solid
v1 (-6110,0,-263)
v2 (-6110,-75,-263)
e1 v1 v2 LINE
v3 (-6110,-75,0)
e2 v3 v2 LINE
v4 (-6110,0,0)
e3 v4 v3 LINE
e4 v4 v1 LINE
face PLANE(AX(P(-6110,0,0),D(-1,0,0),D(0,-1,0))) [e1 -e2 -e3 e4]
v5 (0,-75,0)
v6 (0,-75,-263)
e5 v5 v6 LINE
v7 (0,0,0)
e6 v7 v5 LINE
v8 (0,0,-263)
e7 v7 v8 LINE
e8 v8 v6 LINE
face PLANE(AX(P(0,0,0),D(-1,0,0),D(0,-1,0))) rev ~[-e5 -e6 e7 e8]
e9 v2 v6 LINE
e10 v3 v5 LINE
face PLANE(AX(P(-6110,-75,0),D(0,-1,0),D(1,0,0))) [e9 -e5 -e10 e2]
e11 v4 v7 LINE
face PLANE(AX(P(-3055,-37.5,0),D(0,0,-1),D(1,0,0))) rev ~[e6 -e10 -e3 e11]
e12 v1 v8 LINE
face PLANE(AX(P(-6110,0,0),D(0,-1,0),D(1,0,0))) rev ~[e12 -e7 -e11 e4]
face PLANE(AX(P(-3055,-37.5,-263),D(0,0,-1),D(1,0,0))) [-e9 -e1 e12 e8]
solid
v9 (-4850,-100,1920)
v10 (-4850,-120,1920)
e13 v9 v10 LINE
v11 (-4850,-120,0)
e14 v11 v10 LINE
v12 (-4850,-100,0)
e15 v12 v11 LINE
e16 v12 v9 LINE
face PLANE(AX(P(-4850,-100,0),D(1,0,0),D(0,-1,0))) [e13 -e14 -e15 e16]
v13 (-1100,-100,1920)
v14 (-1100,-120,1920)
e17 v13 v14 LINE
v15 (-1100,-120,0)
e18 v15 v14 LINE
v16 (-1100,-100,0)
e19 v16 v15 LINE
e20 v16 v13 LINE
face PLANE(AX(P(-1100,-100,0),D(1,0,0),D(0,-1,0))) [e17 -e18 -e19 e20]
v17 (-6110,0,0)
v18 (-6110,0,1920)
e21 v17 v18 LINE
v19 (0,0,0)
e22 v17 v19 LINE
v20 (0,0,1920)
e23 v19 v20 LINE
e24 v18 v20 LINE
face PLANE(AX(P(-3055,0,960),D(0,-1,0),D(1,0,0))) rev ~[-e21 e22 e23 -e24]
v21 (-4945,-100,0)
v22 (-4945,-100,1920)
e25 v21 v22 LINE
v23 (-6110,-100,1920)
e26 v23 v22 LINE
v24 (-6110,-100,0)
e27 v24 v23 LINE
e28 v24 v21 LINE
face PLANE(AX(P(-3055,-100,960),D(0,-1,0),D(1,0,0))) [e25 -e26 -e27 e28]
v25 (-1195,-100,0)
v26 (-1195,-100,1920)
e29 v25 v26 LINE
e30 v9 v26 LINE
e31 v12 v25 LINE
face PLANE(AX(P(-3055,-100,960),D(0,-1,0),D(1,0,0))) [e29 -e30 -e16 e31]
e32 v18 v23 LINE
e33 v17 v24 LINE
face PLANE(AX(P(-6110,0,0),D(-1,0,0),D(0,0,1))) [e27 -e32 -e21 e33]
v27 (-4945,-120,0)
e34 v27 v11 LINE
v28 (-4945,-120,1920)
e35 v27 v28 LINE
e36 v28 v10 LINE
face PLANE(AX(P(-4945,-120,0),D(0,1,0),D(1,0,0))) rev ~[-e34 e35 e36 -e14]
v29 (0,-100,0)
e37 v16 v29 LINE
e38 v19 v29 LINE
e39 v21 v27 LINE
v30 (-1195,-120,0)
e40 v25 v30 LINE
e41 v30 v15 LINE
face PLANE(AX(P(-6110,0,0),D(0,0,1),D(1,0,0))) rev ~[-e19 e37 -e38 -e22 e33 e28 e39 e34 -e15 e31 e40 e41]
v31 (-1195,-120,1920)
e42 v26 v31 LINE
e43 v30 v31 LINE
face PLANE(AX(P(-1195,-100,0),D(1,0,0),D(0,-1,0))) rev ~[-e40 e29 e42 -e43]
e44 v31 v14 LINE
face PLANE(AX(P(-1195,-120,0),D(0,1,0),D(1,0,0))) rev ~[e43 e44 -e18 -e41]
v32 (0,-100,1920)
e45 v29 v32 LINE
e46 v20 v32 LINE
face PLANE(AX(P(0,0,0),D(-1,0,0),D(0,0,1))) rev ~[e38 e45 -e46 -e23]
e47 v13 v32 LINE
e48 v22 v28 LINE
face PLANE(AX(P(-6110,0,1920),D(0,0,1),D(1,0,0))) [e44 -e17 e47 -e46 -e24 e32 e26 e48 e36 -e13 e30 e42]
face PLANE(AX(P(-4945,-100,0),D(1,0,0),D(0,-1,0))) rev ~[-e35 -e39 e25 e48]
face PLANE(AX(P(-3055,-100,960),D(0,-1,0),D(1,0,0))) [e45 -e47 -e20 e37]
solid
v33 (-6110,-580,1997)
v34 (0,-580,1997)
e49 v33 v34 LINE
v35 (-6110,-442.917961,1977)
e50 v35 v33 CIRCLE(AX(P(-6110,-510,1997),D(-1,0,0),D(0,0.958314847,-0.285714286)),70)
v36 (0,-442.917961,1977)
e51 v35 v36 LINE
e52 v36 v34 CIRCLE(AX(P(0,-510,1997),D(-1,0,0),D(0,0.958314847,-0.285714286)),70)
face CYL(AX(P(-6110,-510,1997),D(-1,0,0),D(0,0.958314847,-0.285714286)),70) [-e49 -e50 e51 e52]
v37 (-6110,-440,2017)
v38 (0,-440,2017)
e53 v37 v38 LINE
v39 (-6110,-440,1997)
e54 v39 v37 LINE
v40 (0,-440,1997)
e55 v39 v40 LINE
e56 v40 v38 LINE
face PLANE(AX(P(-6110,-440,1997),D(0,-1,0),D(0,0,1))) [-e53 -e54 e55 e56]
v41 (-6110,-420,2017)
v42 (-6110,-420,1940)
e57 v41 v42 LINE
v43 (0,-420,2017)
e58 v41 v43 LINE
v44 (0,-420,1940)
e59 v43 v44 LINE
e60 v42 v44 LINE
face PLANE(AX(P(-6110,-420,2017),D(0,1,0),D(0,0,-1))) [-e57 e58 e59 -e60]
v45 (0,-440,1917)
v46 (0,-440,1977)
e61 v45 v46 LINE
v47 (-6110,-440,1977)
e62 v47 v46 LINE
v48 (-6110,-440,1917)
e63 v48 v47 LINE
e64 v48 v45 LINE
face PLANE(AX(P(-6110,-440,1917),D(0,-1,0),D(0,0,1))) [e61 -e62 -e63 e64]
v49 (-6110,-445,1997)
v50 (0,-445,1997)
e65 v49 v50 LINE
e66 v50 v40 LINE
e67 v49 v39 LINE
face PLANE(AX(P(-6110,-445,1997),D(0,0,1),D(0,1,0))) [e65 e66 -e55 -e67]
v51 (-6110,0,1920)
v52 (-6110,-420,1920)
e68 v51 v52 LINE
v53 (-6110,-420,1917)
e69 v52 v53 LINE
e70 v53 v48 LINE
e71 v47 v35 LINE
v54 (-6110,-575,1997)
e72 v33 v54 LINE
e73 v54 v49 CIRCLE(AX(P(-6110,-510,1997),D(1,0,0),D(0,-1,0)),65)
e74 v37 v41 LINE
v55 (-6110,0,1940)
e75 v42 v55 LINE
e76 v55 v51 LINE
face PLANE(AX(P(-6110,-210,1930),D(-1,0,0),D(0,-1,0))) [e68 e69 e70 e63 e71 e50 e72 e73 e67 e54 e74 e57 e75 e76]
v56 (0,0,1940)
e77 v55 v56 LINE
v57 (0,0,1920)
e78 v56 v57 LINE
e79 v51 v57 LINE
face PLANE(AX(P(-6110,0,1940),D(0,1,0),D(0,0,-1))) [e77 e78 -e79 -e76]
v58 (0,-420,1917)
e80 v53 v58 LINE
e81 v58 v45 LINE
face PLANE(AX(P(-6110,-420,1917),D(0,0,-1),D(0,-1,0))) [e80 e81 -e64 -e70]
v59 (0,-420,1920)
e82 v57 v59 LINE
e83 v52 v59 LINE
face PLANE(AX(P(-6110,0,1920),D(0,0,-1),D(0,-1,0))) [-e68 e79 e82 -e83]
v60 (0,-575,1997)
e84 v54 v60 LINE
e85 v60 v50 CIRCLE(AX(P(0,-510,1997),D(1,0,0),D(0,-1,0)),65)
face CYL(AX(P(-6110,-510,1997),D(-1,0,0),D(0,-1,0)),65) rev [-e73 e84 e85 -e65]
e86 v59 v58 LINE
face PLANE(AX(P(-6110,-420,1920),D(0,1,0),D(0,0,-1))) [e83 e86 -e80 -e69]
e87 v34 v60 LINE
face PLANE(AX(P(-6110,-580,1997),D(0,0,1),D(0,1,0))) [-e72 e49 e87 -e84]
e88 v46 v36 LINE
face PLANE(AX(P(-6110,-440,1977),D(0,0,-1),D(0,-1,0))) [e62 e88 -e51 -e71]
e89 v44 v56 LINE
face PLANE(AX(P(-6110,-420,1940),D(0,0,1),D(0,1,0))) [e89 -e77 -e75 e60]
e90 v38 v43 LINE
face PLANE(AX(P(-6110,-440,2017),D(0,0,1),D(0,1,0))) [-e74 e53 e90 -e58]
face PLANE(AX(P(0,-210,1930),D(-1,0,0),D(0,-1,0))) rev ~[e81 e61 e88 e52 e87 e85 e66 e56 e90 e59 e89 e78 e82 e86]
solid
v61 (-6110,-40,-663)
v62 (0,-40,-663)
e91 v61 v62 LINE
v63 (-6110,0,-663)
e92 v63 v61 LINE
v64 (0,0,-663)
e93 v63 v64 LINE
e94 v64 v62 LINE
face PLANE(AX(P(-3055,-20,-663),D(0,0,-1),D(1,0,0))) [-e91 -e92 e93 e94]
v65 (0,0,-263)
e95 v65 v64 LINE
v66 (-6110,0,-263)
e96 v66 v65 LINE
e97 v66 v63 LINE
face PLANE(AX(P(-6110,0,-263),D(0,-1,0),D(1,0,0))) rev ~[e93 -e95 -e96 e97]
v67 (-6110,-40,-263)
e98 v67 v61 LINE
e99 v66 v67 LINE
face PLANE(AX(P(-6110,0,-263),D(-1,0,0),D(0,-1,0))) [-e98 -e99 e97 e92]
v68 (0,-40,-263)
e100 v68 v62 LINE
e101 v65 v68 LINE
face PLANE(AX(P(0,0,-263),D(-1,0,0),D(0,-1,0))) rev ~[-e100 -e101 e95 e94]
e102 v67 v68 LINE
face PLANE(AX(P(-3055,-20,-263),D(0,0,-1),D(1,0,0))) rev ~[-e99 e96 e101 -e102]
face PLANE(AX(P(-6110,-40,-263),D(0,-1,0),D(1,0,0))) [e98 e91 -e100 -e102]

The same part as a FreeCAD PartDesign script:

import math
import FreeCAD as App
import Part
import Sketcher
from FreeCAD import Vector


def add_polygon(sketch, points):
    """Adds a closed chain of lines whose ends are joined by coincident constraints."""
    first, n = sketch.GeometryCount, len(points)
    for a, b in zip(points, points[1:] + points[:1]):
        sketch.addGeometry(Part.LineSegment(App.Vector(*a, 0), App.Vector(*b, 0)), False)
    for i in range(n):
        sketch.addConstraint(Sketcher.Constraint("Coincident", first + i, 2, first + (i + 1) % n, 1))

doc = App.newDocument("Part")
body = doc.addObject("PartDesign::Body", "Body")

# Sketch on XZ plane
sketch1 = body.newObject("Sketcher::SketchObject", "Sketch")
sketch1.AttachmentSupport = (doc.getObject("XZ_Plane"), [""])
sketch1.MapMode = "FlatFace"
add_polygon(sketch1, [(-6110, 1920), (-6110, 0), (0, 0), (0, 1920)])  # lines 0-3
sketch1.addConstraint([
    Sketcher.Constraint("Vertical", 0),
    Sketcher.Constraint("Horizontal", 1),
    Sketcher.Constraint("Vertical", 2),
    Sketcher.Constraint("Horizontal", 3),
    Sketcher.Constraint("Coincident", 1, 2, -1, 1),
    Sketcher.Constraint("DistanceX", 1, 1, 1, 2, 6110.0),
    Sketcher.Constraint("DistanceY", 0, 2, 0, 1, 1920.0),
])
pad1 = body.newObject("PartDesign::Pad", "Pad")
pad1.Profile = sketch1
pad1.Length = 100

# Sketch on XY plane
sketch2 = body.newObject("Sketcher::SketchObject", "Sketch001")
sketch2.AttachmentSupport = (doc.getObject("XY_Plane"), [""])
sketch2.MapMode = "FlatFace"
add_polygon(sketch2, [(-4945, -120), (-4945, -100), (-4850, -100), (-4850, -120)])  # lines 0-3
add_polygon(sketch2, [(-1195, -120), (-1195, -100), (-1100, -100), (-1100, -120)])  # lines 4-7
sketch2.addConstraint([
    Sketcher.Constraint("Vertical", 0),
    Sketcher.Constraint("Horizontal", 1),
    Sketcher.Constraint("Vertical", 2),
    Sketcher.Constraint("Horizontal", 3),
    Sketcher.Constraint("Vertical", 4),
    Sketcher.Constraint("Horizontal", 5),
    Sketcher.Constraint("Vertical", 6),
    Sketcher.Constraint("Horizontal", 7),
    Sketcher.Constraint("Horizontal", 1, 2, 4, 2),
    Sketcher.Constraint("Horizontal", 3, 2, 6, 2),
    Sketcher.Constraint("Equal", 3, 5),
    Sketcher.Constraint("DistanceX", 1, 1, 1, 2, 95.0),
    Sketcher.Constraint("DistanceY", 0, 1, 0, 2, 20.0),
    Sketcher.Constraint("DistanceX", 0, 2, -1, 1, 4945.0),
    Sketcher.Constraint("DistanceY", 0, 2, -1, 1, 100.0),
    Sketcher.Constraint("DistanceX", 4, 2, -1, 1, 1195.0),
])
pad2 = body.newObject("PartDesign::Pad", "Pad001")
pad2.Profile = sketch2
pad2.Length = 1920
body2 = doc.addObject("PartDesign::Body", "Body001")

# Sketch on YZ plane
sketch3 = body2.newObject("Sketcher::SketchObject", "Sketch002")
sketch3.AttachmentSupport = (doc.getObject("YZ_Plane001"), [""])
sketch3.MapMode = "FlatFace"
sketch3.AttachmentOffset = App.Placement(Vector(0, 0, -6110), App.Rotation())
sketch3.addGeometry([
    Part.LineSegment(Vector(0, 1940, 0), Vector(0, 1920, 0)),  # 0
    Part.LineSegment(Vector(0, 1920, 0), Vector(-420, 1920, 0)),  # 1
    Part.LineSegment(Vector(-420, 1920, 0), Vector(-420, 1917, 0)),  # 2
    Part.LineSegment(Vector(-420, 1917, 0), Vector(-440, 1917, 0)),  # 3
    Part.LineSegment(Vector(-440, 1917, 0), Vector(-440, 1977, 0)),  # 4
    Part.LineSegment(Vector(-440, 1977, 0), Vector(-442.9, 1977, 0)),  # 5
    Part.ArcOfCircle(Part.Circle(Vector(-510, 1997, 0), Vector(0, 0, 1), 70), math.radians(180), math.radians(343)),  # 6
    Part.LineSegment(Vector(-580, 1997, 0), Vector(-575, 1997, 0)),  # 7
    Part.ArcOfCircle(Part.Circle(Vector(-510, 1997, 0), Vector(0, 0, 1), 65), math.radians(180), math.radians(360)),  # 8
    Part.LineSegment(Vector(-445, 1997, 0), Vector(-440, 1997, 0)),  # 9
    Part.LineSegment(Vector(-440, 1997, 0), Vector(-440, 2017, 0)),  # 10
    Part.LineSegment(Vector(-440, 2017, 0), Vector(-420, 2017, 0)),  # 11
    Part.LineSegment(Vector(-420, 2017, 0), Vector(-420, 1940, 0)),  # 12
    Part.LineSegment(Vector(-420, 1940, 0), Vector(0, 1940, 0)),  # 13
], False)
sketch3.addConstraint([
    Sketcher.Constraint("Coincident", 0, 2, 1, 1),
    Sketcher.Constraint("Coincident", 1, 2, 2, 1),
    Sketcher.Constraint("Coincident", 2, 2, 3, 1),
    Sketcher.Constraint("Coincident", 3, 2, 4, 1),
    Sketcher.Constraint("Coincident", 4, 2, 5, 1),
    Sketcher.Constraint("Coincident", 5, 2, 6, 2),
    Sketcher.Constraint("Coincident", 6, 1, 7, 1),
    Sketcher.Constraint("Coincident", 7, 2, 8, 1),
    Sketcher.Constraint("Coincident", 8, 2, 9, 1),
    Sketcher.Constraint("Coincident", 9, 2, 10, 1),
    Sketcher.Constraint("Coincident", 10, 2, 11, 1),
    Sketcher.Constraint("Coincident", 11, 2, 12, 1),
    Sketcher.Constraint("Coincident", 12, 2, 13, 1),
    Sketcher.Constraint("Coincident", 13, 2, 0, 1),
    Sketcher.Constraint("Vertical", 0),
    Sketcher.Constraint("Horizontal", 1),
    Sketcher.Constraint("Vertical", 2),
    Sketcher.Constraint("Horizontal", 3),
    Sketcher.Constraint("Vertical", 4),
    Sketcher.Constraint("Horizontal", 5),
    Sketcher.Constraint("Horizontal", 7),
    Sketcher.Constraint("Horizontal", 9),
    Sketcher.Constraint("Vertical", 10),
    Sketcher.Constraint("Horizontal", 11),
    Sketcher.Constraint("Vertical", 12),
    Sketcher.Constraint("Horizontal", 13),
    Sketcher.Constraint("Coincident", 8, 3, 6, 3),
    Sketcher.Constraint("PointOnObject", 0, 2, -2),
    Sketcher.Constraint("Horizontal", 8, 3, 6, 1),
    Sketcher.Constraint("Horizontal", 7, 2, 8, 2),
    Sketcher.Constraint("Vertical", 4, 2, 9, 2),
    Sketcher.Constraint("Vertical", 2, 2, 11, 2),
    Sketcher.Constraint("Equal", 7, 9),
    Sketcher.Constraint("Equal", 11, 0),
    Sketcher.Constraint("Equal", 0, 10),
    Sketcher.Constraint("Radius", 6, 70.0),
    Sketcher.Constraint("Radius", 8, 65.0),
    Sketcher.Constraint("DistanceX", 1, 2, 1, 1, 420.0),
    Sketcher.Constraint("DistanceX", 3, 2, 3, 1, 20.0),
    Sketcher.Constraint("DistanceY", 2, 2, 2, 1, 3.0),
    Sketcher.Constraint("DistanceY", 4, 1, 4, 2, 60.0),
    Sketcher.Constraint("DistanceY", 12, 2, 12, 1, 77.0),
    Sketcher.Constraint("DistanceY", -1, 1, 6, 3, 1997.0),
])
pad3 = body2.newObject("PartDesign::Pad", "Pad002")
pad3.Profile = sketch3
pad3.Length = 6110
body3 = doc.addObject("PartDesign::Body", "Body002")

# Sketch on XY plane
sketch4 = body3.newObject("Sketcher::SketchObject", "Sketch003")
sketch4.AttachmentSupport = (doc.getObject("XY_Plane002"), [""])
sketch4.MapMode = "FlatFace"
add_polygon(sketch4, [(-6110, -75), (-6110, 0), (0, 0), (0, -75)])  # lines 0-3
sketch4.addConstraint([
    Sketcher.Constraint("Vertical", 0),
    Sketcher.Constraint("Horizontal", 1),
    Sketcher.Constraint("Vertical", 2),
    Sketcher.Constraint("Horizontal", 3),
    Sketcher.Constraint("Coincident", 1, 2, -1, 1),
    Sketcher.Constraint("DistanceX", 1, 1, 1, 2, 6110.0),
    Sketcher.Constraint("DistanceY", 0, 1, 0, 2, 75.0),
])
pad4 = body3.newObject("PartDesign::Pad", "Pad003")
pad4.Profile = sketch4
pad4.Length = 263
pad4.Reversed = True
body4 = doc.addObject("PartDesign::Body", "Body003")

# Sketch on XY plane
sketch5 = body4.newObject("Sketcher::SketchObject", "Sketch004")
sketch5.AttachmentSupport = (doc.getObject("XY_Plane003"), [""])
sketch5.MapMode = "FlatFace"
sketch5.AttachmentOffset = App.Placement(Vector(0, 0, -263), App.Rotation())
add_polygon(sketch5, [(-6110, -40), (-6110, 0), (0, 0), (0, -40)])  # lines 0-3
sketch5.addConstraint([
    Sketcher.Constraint("Vertical", 0),
    Sketcher.Constraint("Horizontal", 1),
    Sketcher.Constraint("Vertical", 2),
    Sketcher.Constraint("Horizontal", 3),
    Sketcher.Constraint("Coincident", 1, 2, -1, 1),
    Sketcher.Constraint("DistanceX", 1, 1, 1, 2, 6110.0),
    Sketcher.Constraint("DistanceY", 0, 1, 0, 2, 40.0),
])
pad5 = body4.newObject("PartDesign::Pad", "Pad004")
pad5.Profile = sketch5
pad5.Length = 400
pad5.Reversed = True

doc.recompute()
